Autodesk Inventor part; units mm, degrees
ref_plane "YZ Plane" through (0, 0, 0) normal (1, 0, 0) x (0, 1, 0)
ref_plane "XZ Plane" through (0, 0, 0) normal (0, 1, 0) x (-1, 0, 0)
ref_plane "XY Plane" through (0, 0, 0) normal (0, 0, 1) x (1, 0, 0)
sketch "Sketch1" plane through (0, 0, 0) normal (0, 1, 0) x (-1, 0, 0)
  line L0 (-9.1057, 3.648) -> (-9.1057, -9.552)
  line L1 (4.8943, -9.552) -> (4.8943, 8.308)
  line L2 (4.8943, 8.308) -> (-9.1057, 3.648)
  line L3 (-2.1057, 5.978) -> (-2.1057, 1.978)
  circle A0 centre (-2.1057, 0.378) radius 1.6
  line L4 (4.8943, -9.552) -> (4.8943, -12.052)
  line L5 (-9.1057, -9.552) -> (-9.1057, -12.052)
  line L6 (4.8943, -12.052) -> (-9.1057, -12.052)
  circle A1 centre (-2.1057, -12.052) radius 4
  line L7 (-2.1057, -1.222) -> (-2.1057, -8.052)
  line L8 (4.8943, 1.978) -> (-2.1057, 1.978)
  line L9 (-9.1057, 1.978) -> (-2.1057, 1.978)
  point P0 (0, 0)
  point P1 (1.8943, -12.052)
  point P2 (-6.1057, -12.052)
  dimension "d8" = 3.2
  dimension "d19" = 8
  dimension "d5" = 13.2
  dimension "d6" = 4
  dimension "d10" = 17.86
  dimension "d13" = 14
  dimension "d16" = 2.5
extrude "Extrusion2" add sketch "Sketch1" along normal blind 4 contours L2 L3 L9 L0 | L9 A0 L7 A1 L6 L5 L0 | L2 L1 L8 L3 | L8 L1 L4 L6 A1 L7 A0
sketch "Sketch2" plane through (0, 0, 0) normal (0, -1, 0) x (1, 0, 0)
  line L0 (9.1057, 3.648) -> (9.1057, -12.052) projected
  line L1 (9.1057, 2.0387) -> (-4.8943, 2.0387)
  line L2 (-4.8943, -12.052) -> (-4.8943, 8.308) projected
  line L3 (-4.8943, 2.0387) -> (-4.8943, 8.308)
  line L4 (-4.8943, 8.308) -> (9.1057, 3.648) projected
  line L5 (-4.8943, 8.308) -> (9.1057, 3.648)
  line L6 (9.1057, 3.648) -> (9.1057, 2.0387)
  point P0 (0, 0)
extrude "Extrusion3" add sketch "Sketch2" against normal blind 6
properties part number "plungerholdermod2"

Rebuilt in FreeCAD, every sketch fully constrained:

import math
import FreeCAD as App
import Part
import Sketcher
Q = App.Units.Quantity


def add_polygon(sketch, points):
    """Adds a closed chain of lines whose ends are joined by coincident constraints."""
    first, n = sketch.GeometryCount, len(points)
    for a, b in zip(points, points[1:] + points[:1]):
        sketch.addGeometry(Part.LineSegment(App.Vector(*a, 0), App.Vector(*b, 0)), False)
    for i in range(n):
        sketch.addConstraint(Sketcher.Constraint("Coincident", first + i, 2, first + (i + 1) % n, 1))

doc = App.newDocument("Part")
params = doc.addObject("Spreadsheet::Sheet", "Params")
for row, (alias, value) in enumerate([
    ("sketch1_radius", "4 mm"),
    ("sketch1_diameter", "3.2 mm"),
    ("sketch1_height", "15.7 mm"),
    ("sketch1_height2", "20.36 mm"),
    ("pad1_length", "4 mm"),
    ("sketch2_width", "14 mm"),
    ("pad2_length", "6 mm"),
], start=1):
    params.set(f"A{row}", alias)
    params.set(f"B{row}", "=" + value)
    params.setAlias(f"B{row}", alias)

body = doc.addObject("PartDesign::Body", "Body")

# Sketch on XZ plane
sketch1 = doc.addObject("Sketcher::SketchObject", "Sketch")
body.addObject(sketch1)
sketch1.AttachmentSupport = (doc.XZ_Plane, [""])
sketch1.MapMode = "FlatFace"
sketch1.addGeometry([
    Part.LineSegment(App.Vector(9.1, 3.6, 0), App.Vector(9.1, -12.1, 0)),  # 0
    Part.LineSegment(App.Vector(9.1, -12.1, 0), App.Vector(6.1, -12.1, 0)),  # 1
    Part.ArcOfCircle(Part.Circle(App.Vector(2.1, -12.1, 0), App.Vector(0, 0, 1), 4), math.radians(0), math.radians(180)),  # 2
    Part.LineSegment(App.Vector(-1.9, -12.1, 0), App.Vector(-4.9, -12.1, 0)),  # 3
    Part.LineSegment(App.Vector(-4.9, -12.1, 0), App.Vector(-4.9, 8.3, 0)),  # 4
    Part.LineSegment(App.Vector(-4.9, 8.3, 0), App.Vector(9.1, 3.6, 0)),  # 5
    Part.Circle(App.Vector(2.1, 0.4, 0), App.Vector(0, 0, 1), 1.6),  # 6
], False)
sketch1.addConstraint([
    Sketcher.Constraint("Coincident", 0, 2, 1, 1),
    Sketcher.Constraint("Coincident", 1, 2, 2, 1),
    Sketcher.Constraint("Coincident", 2, 2, 3, 1),
    Sketcher.Constraint("Coincident", 3, 2, 4, 1),
    Sketcher.Constraint("Coincident", 4, 2, 5, 1),
    Sketcher.Constraint("Coincident", 5, 2, 0, 1),
    Sketcher.Constraint("Vertical", 0),
    Sketcher.Constraint("Horizontal", 1),
    Sketcher.Constraint("Horizontal", 3),
    Sketcher.Constraint("Vertical", 4),
    Sketcher.Constraint("Horizontal", 2, 3, 0, 2),
    Sketcher.Constraint("Horizontal", 1, 2, 2, 2),
    Sketcher.Constraint("Vertical", 2, 3, 6, 3),
    Sketcher.Constraint("Equal", 1, 3),
    Sketcher.Constraint("Radius", 2, Q("4 mm")),
    Sketcher.Constraint("Diameter", 6, Q("3.2 mm")),
    Sketcher.Constraint("DistanceX", 3, 2, 0, 2, Q("14 mm")),
    Sketcher.Constraint("DistanceY", 0, 2, 0, 1, Q("15.7 mm")),
    Sketcher.Constraint("DistanceY", 4, 1, 4, 2, Q("20.36 mm")),
    Sketcher.Constraint("DistanceY", 2, 3, 6, 3, Q("12.43 mm")),
    Sketcher.Constraint("DistanceY", 2, 3, -1, 1, Q("12.052 mm")),
    Sketcher.Constraint("DistanceX", -1, 1, 2, 3, Q("2.1057 mm")),
])
sketch1.setExpression("Constraints[14]", "Params.sketch1_radius")
sketch1.setExpression("Constraints[15]", "Params.sketch1_diameter")
sketch1.setExpression("Constraints[17]", "Params.sketch1_height")
sketch1.setExpression("Constraints[18]", "Params.sketch1_height2")
pad1 = doc.addObject("PartDesign::Pad", "Pad")
body.addObject(pad1)
pad1.Profile = sketch1
pad1.setExpression("Length", "Params.pad1_length")
pad1.Reversed = True

# Sketch on XZ plane
sketch2 = doc.addObject("Sketcher::SketchObject", "Sketch001")
body.addObject(sketch2)
sketch2.AttachmentSupport = (doc.XZ_Plane, [""])
sketch2.MapMode = "FlatFace"
add_polygon(sketch2, [(9.1, 2), (9.1, 3.6), (-4.9, 8.3), (-4.9, 2)])  # lines 0-3
sketch2.addConstraint([
    Sketcher.Constraint("Vertical", 0),
    Sketcher.Constraint("Vertical", 2),
    Sketcher.Constraint("Horizontal", 3),
    Sketcher.Constraint("DistanceX", 3, 1, 3, 2, Q("14 mm")),
    Sketcher.Constraint("Angle", 1, Q("161.5896 deg")),
    Sketcher.Constraint("DistanceY", 0, 1, 0, 2, Q("1.6093 mm")),
    Sketcher.Constraint("DistanceY", -1, 1, 0, 2, Q("3.648 mm")),
    Sketcher.Constraint("DistanceX", -1, 1, 0, 2, Q("9.1057 mm")),
])
sketch2.setExpression("Constraints[7]", "Params.sketch2_width")
pad2 = doc.addObject("PartDesign::Pad", "Pad001")
body.addObject(pad2)
pad2.Profile = sketch2
pad2.setExpression("Length", "Params.pad2_length")
pad2.Reversed = True

doc.recompute()
